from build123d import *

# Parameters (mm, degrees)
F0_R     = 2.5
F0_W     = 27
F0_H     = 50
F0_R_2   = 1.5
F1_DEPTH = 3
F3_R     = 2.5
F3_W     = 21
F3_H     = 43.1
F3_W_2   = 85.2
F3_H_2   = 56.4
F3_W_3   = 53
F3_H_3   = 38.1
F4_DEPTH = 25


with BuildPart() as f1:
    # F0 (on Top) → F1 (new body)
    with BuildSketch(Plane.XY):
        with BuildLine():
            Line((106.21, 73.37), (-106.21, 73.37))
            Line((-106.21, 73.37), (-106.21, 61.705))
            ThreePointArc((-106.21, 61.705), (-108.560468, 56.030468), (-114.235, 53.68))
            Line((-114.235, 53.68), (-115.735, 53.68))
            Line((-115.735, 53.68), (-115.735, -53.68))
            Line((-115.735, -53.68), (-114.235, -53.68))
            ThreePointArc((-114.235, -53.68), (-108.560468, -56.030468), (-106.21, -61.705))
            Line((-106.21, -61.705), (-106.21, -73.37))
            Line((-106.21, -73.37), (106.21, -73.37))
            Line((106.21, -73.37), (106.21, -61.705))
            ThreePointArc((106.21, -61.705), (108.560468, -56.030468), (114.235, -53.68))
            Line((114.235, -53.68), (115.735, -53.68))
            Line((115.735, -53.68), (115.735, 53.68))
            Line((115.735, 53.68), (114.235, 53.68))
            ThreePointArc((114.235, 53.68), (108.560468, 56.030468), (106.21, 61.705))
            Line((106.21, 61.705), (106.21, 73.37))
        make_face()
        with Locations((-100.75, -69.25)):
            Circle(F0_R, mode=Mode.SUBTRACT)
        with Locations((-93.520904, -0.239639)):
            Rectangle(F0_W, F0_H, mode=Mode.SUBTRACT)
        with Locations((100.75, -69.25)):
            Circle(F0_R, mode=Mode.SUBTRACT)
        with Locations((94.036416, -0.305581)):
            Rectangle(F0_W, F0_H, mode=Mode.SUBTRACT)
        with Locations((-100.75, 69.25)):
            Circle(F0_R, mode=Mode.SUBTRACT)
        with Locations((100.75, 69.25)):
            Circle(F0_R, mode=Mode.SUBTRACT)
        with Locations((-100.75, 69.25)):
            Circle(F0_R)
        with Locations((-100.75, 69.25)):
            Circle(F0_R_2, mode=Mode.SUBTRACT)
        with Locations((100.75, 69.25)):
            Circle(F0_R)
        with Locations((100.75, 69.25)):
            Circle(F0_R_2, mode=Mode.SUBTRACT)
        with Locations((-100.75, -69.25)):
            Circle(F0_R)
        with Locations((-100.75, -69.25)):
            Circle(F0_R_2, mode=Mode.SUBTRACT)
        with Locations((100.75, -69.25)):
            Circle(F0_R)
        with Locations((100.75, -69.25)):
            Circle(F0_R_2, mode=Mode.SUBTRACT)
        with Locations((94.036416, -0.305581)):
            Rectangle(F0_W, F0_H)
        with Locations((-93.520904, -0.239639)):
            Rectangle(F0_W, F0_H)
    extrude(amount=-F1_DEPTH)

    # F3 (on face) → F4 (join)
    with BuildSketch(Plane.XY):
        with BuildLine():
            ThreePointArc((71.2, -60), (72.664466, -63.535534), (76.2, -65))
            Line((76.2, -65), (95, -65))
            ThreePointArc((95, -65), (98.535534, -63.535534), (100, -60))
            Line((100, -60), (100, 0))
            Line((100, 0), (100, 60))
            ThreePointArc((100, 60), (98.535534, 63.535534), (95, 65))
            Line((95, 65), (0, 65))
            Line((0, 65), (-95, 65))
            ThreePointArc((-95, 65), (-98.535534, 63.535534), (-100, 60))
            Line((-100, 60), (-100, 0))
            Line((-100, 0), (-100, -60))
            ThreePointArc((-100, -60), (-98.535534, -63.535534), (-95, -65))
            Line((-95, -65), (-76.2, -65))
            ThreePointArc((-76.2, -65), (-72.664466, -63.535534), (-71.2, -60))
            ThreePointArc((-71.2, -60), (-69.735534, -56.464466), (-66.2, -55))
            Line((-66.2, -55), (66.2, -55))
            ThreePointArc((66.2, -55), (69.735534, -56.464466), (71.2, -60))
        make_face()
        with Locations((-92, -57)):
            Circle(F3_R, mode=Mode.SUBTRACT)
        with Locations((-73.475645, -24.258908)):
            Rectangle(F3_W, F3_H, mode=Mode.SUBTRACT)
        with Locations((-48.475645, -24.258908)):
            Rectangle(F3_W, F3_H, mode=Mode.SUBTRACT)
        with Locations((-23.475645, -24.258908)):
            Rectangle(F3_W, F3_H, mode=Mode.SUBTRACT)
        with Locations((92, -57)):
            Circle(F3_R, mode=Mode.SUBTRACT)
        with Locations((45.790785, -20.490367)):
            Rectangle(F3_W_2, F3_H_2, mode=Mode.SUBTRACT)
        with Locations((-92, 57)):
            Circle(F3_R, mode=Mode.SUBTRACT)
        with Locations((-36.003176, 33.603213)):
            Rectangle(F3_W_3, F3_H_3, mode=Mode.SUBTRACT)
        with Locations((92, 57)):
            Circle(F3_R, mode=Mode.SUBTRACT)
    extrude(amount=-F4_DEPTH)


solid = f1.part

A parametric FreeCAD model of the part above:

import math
import FreeCAD as App
import Part
import Sketcher


def add_polygon(sketch, points):
    """Adds a closed chain of lines whose ends are joined by coincident constraints."""
    first, n = sketch.GeometryCount, len(points)
    for a, b in zip(points, points[1:] + points[:1]):
        sketch.addGeometry(Part.LineSegment(App.Vector(*a, 0), App.Vector(*b, 0)), False)
    for i in range(n):
        sketch.addConstraint(Sketcher.Constraint("Coincident", first + i, 2, first + (i + 1) % n, 1))

doc = App.newDocument("Part")
body = doc.addObject("PartDesign::Body", "Body")

sketch1 = doc.addObject("Sketcher::SketchObject", "Sketch")
body.addObject(sketch1)
sketch1.AttachmentSupport = (doc.XY_Plane, [""])
sketch1.MapMode = "FlatFace"
sketch1.addGeometry(Part.LineSegment(App.Vector(106.2, 73.4, 0), App.Vector(-106.2, 73.4, 0)), False)
sketch1.addGeometry(Part.LineSegment(App.Vector(-106.2, 73.4, 0), App.Vector(-106.2, 61.7, 0)), False)
sketch1.addGeometry(Part.ArcOfCircle(Part.Circle(App.Vector(-114.2, 61.7, 0), App.Vector(0, 0, 1), 8), math.radians(-90), math.radians(0)), False)
sketch1.addGeometry(Part.LineSegment(App.Vector(-114.2, 53.7, 0), App.Vector(-115.7, 53.7, 0)), False)
sketch1.addGeometry(Part.LineSegment(App.Vector(-115.7, 53.7, 0), App.Vector(-115.7, -53.7, 0)), False)
sketch1.addGeometry(Part.LineSegment(App.Vector(-115.7, -53.7, 0), App.Vector(-114.2, -53.7, 0)), False)
sketch1.addGeometry(Part.ArcOfCircle(Part.Circle(App.Vector(-114.2, -61.7, 0), App.Vector(0, 0, 1), 8), math.radians(0), math.radians(90)), False)
sketch1.addGeometry(Part.LineSegment(App.Vector(-106.2, -61.7, 0), App.Vector(-106.2, -73.4, 0)), False)
sketch1.addGeometry(Part.LineSegment(App.Vector(-106.2, -73.4, 0), App.Vector(106.2, -73.4, 0)), False)
sketch1.addGeometry(Part.LineSegment(App.Vector(106.2, -73.4, 0), App.Vector(106.2, -61.7, 0)), False)
sketch1.addGeometry(Part.ArcOfCircle(Part.Circle(App.Vector(114.2, -61.7, 0), App.Vector(0, 0, 1), 8), math.radians(90), math.radians(180)), False)
sketch1.addGeometry(Part.LineSegment(App.Vector(114.2, -53.7, 0), App.Vector(115.7, -53.7, 0)), False)
sketch1.addGeometry(Part.LineSegment(App.Vector(115.7, -53.7, 0), App.Vector(115.7, 53.7, 0)), False)
sketch1.addGeometry(Part.LineSegment(App.Vector(115.7, 53.7, 0), App.Vector(114.2, 53.7, 0)), False)
sketch1.addGeometry(Part.ArcOfCircle(Part.Circle(App.Vector(114.2, 61.7, 0), App.Vector(0, 0, 1), 8), math.radians(180), math.radians(270)), False)
sketch1.addGeometry(Part.LineSegment(App.Vector(106.2, 61.7, 0), App.Vector(106.2, 73.4, 0)), False)
sketch1.addGeometry(Part.Circle(App.Vector(-100.8, -69.2, 0), App.Vector(0, 0, 1), 1.5), False)
sketch1.addGeometry(Part.Circle(App.Vector(100.8, -69.2, 0), App.Vector(0, 0, 1), 1.5), False)
sketch1.addGeometry(Part.Circle(App.Vector(-100.8, 69.2, 0), App.Vector(0, 0, 1), 1.5), False)
sketch1.addGeometry(Part.Circle(App.Vector(100.8, 69.2, 0), App.Vector(0, 0, 1), 1.5), False)
sketch1.addConstraint(Sketcher.Constraint("Coincident", 0, 2, 1, 1))
sketch1.addConstraint(Sketcher.Constraint("Tangent", 1, 2, 2, 2))
sketch1.addConstraint(Sketcher.Constraint("Tangent", 2, 1, 3, 1))
sketch1.addConstraint(Sketcher.Constraint("Coincident", 3, 2, 4, 1))
sketch1.addConstraint(Sketcher.Constraint("Coincident", 4, 2, 5, 1))
sketch1.addConstraint(Sketcher.Constraint("Tangent", 5, 2, 6, 2))
sketch1.addConstraint(Sketcher.Constraint("Tangent", 6, 1, 7, 1))
sketch1.addConstraint(Sketcher.Constraint("Coincident", 7, 2, 8, 1))
sketch1.addConstraint(Sketcher.Constraint("Coincident", 8, 2, 9, 1))
sketch1.addConstraint(Sketcher.Constraint("Tangent", 9, 2, 10, 2))
sketch1.addConstraint(Sketcher.Constraint("Tangent", 10, 1, 11, 1))
sketch1.addConstraint(Sketcher.Constraint("Coincident", 11, 2, 12, 1))
sketch1.addConstraint(Sketcher.Constraint("Coincident", 12, 2, 13, 1))
sketch1.addConstraint(Sketcher.Constraint("Tangent", 13, 2, 14, 2))
sketch1.addConstraint(Sketcher.Constraint("Tangent", 14, 1, 15, 1))
sketch1.addConstraint(Sketcher.Constraint("Coincident", 15, 2, 0, 1))
sketch1.addConstraint(Sketcher.Constraint("Horizontal", 0))
sketch1.addConstraint(Sketcher.Constraint("Vertical", 1))
sketch1.addConstraint(Sketcher.Constraint("Horizontal", 3))
sketch1.addConstraint(Sketcher.Constraint("Vertical", 4))
sketch1.addConstraint(Sketcher.Constraint("Horizontal", 5))
sketch1.addConstraint(Sketcher.Constraint("Vertical", 7))
sketch1.addConstraint(Sketcher.Constraint("Horizontal", 8))
sketch1.addConstraint(Sketcher.Constraint("Vertical", 9))
sketch1.addConstraint(Sketcher.Constraint("Horizontal", 11))
sketch1.addConstraint(Sketcher.Constraint("Vertical", 12))
sketch1.addConstraint(Sketcher.Constraint("Horizontal", 13))
sketch1.addConstraint(Sketcher.Constraint("Vertical", 15))
sketch1.addConstraint(Sketcher.Constraint("Equal", 2, 6))
sketch1.addConstraint(Sketcher.Constraint("Equal", 6, 10))
sketch1.addConstraint(Sketcher.Constraint("Equal", 10, 14))
sketch1.addConstraint(Sketcher.Constraint("Equal", 16, 17))
sketch1.addConstraint(Sketcher.Constraint("Equal", 17, 18))
sketch1.addConstraint(Sketcher.Constraint("Equal", 18, 19))
sketch1.addConstraint(Sketcher.Constraint("Symmetric", 2, 3, 10, 3, -1, 1))
sketch1.addConstraint(Sketcher.Constraint("Symmetric", 6, 3, 14, 3, -1, 1))
sketch1.addConstraint(Sketcher.Constraint("Symmetric", 17, 3, 18, 3, -1, 1))
sketch1.addConstraint(Sketcher.Constraint("Symmetric", 16, 3, 19, 3, -1, 1))
sketch1.addConstraint(Sketcher.Constraint("Symmetric", 6, 3, 10, 3, -2))
sketch1.addConstraint(Sketcher.Constraint("Symmetric", 16, 3, 17, 3, -2))
sketch1.addConstraint(Sketcher.Constraint("Equal", 5, 11))
sketch1.addConstraint(Sketcher.Constraint("Equal", 1, 7))
sketch1.addConstraint(Sketcher.Constraint("Diameter", 16, 3.0))
sketch1.addConstraint(Sketcher.Constraint("DistanceX", 3, 2, 3, 1, 1.5))
sketch1.addConstraint(Sketcher.Constraint("Radius", 2, 8.025))
sketch1.addConstraint(Sketcher.Constraint("DistanceX", 0, 2, 0, 1, 212.42))
sketch1.addConstraint(Sketcher.Constraint("DistanceY", 4, 2, 4, 1, 107.36))
sketch1.addConstraint(Sketcher.Constraint("DistanceX", 16, 3, 17, 3, 201.5))
sketch1.addConstraint(Sketcher.Constraint("DistanceY", 16, 3, 18, 3, 138.5))
sketch1.addConstraint(Sketcher.Constraint("DistanceY", 1, 2, 1, 1, 11.665))
pad1 = doc.addObject("PartDesign::Pad", "Pad")
body.addObject(pad1)
pad1.Profile = sketch1
pad1.Length = 3
pad1.Reversed = True

sketch2 = doc.addObject("Sketcher::SketchObject", "Sketch001")
body.addObject(sketch2)
sketch2.AttachmentSupport = (doc.XY_Plane, [""])
sketch2.MapMode = "FlatFace"
sketch2.addGeometry(Part.ArcOfCircle(Part.Circle(App.Vector(76.2, -60, 0), App.Vector(0, 0, 1), 5), math.radians(180), math.radians(270)), False)
sketch2.addGeometry(Part.LineSegment(App.Vector(76.2, -65, 0), App.Vector(95, -65, 0)), False)
sketch2.addGeometry(Part.ArcOfCircle(Part.Circle(App.Vector(95, -60, 0), App.Vector(0, 0, 1), 5), math.radians(-90), math.radians(0)), False)
sketch2.addGeometry(Part.LineSegment(App.Vector(100, -60, 0), App.Vector(100, 60, 0)), False)
sketch2.addGeometry(Part.ArcOfCircle(Part.Circle(App.Vector(95, 60, 0), App.Vector(0, 0, 1), 5), math.radians(0), math.radians(90)), False)
sketch2.addGeometry(Part.LineSegment(App.Vector(95, 65, 0), App.Vector(-95, 65, 0)), False)
sketch2.addGeometry(Part.ArcOfCircle(Part.Circle(App.Vector(-95, 60, 0), App.Vector(0, 0, 1), 5), math.radians(90), math.radians(180)), False)
sketch2.addGeometry(Part.LineSegment(App.Vector(-100, 60, 0), App.Vector(-100, -60, 0)), False)
sketch2.addGeometry(Part.ArcOfCircle(Part.Circle(App.Vector(-95, -60, 0), App.Vector(0, 0, 1), 5), math.radians(180), math.radians(270)), False)
sketch2.addGeometry(Part.LineSegment(App.Vector(-95, -65, 0), App.Vector(-76.2, -65, 0)), False)
sketch2.addGeometry(Part.ArcOfCircle(Part.Circle(App.Vector(-76.2, -60, 0), App.Vector(0, 0, 1), 5), math.radians(-90), math.radians(0)), False)
sketch2.addGeometry(Part.ArcOfCircle(Part.Circle(App.Vector(-66.2, -60, 0), App.Vector(0, 0, 1), 5), math.radians(90), math.radians(180)), False)
sketch2.addGeometry(Part.LineSegment(App.Vector(-66.2, -55, 0), App.Vector(66.2, -55, 0)), False)
sketch2.addGeometry(Part.ArcOfCircle(Part.Circle(App.Vector(66.2, -60, 0), App.Vector(0, 0, 1), 5), math.radians(0), math.radians(90)), False)
sketch2.addGeometry(Part.Circle(App.Vector(-92, -57, 0), App.Vector(0, 0, 1), 2.5), False)
add_polygon(sketch2, [(-63, -45.8), (-84, -45.8), (-84, -2.7), (-63, -2.7)])
add_polygon(sketch2, [(-38, -45.8), (-59, -45.8), (-59, -2.7), (-38, -2.7)])
add_polygon(sketch2, [(-13, -45.8), (-34, -45.8), (-34, -2.7), (-13, -2.7)])
sketch2.addGeometry(Part.Circle(App.Vector(92, -57, 0), App.Vector(0, 0, 1), 2.5), False)
add_polygon(sketch2, [(88.4, -48.7), (3.2, -48.7), (3.2, 7.7), (88.4, 7.7)])
sketch2.addGeometry(Part.Circle(App.Vector(-92, 57, 0), App.Vector(0, 0, 1), 2.5), False)
add_polygon(sketch2, [(-9.5, 14.6), (-62.5, 14.6), (-62.5, 52.7), (-9.5, 52.7)])
sketch2.addGeometry(Part.Circle(App.Vector(92, 57, 0), App.Vector(0, 0, 1), 2.5), False)
sketch2.addConstraint(Sketcher.Constraint("Tangent", 0, 2, 1, 1))
sketch2.addConstraint(Sketcher.Constraint("Tangent", 1, 2, 2, 1))
sketch2.addConstraint(Sketcher.Constraint("Tangent", 2, 2, 3, 1))
sketch2.addConstraint(Sketcher.Constraint("Tangent", 3, 2, 4, 1))
sketch2.addConstraint(Sketcher.Constraint("Tangent", 4, 2, 5, 1))
sketch2.addConstraint(Sketcher.Constraint("Tangent", 5, 2, 6, 1))
sketch2.addConstraint(Sketcher.Constraint("Tangent", 6, 2, 7, 1))
sketch2.addConstraint(Sketcher.Constraint("Tangent", 7, 2, 8, 1))
sketch2.addConstraint(Sketcher.Constraint("Tangent", 8, 2, 9, 1))
sketch2.addConstraint(Sketcher.Constraint("Tangent", 9, 2, 10, 1))
sketch2.addConstraint(Sketcher.Constraint("Tangent", 10, 2, 11, 2))
sketch2.addConstraint(Sketcher.Constraint("Tangent", 11, 1, 12, 1))
sketch2.addConstraint(Sketcher.Constraint("Tangent", 12, 2, 13, 2))
sketch2.addConstraint(Sketcher.Constraint("Tangent", 13, 1, 0, 1))
sketch2.addConstraint(Sketcher.Constraint("Horizontal", 1))
sketch2.addConstraint(Sketcher.Constraint("Vertical", 3))
sketch2.addConstraint(Sketcher.Constraint("Horizontal", 5))
sketch2.addConstraint(Sketcher.Constraint("Vertical", 7))
sketch2.addConstraint(Sketcher.Constraint("Horizontal", 9))
sketch2.addConstraint(Sketcher.Constraint("Horizontal", 12))
sketch2.addConstraint(Sketcher.Constraint("Horizontal", 15))
sketch2.addConstraint(Sketcher.Constraint("Vertical", 16))
sketch2.addConstraint(Sketcher.Constraint("Horizontal", 17))
sketch2.addConstraint(Sketcher.Constraint("Vertical", 18))
sketch2.addConstraint(Sketcher.Constraint("Horizontal", 19))
sketch2.addConstraint(Sketcher.Constraint("Vertical", 20))
sketch2.addConstraint(Sketcher.Constraint("Horizontal", 21))
sketch2.addConstraint(Sketcher.Constraint("Vertical", 22))
sketch2.addConstraint(Sketcher.Constraint("Horizontal", 23))
sketch2.addConstraint(Sketcher.Constraint("Vertical", 24))
sketch2.addConstraint(Sketcher.Constraint("Horizontal", 25))
sketch2.addConstraint(Sketcher.Constraint("Vertical", 26))
sketch2.addConstraint(Sketcher.Constraint("Horizontal", 28))
sketch2.addConstraint(Sketcher.Constraint("Vertical", 29))
sketch2.addConstraint(Sketcher.Constraint("Horizontal", 30))
sketch2.addConstraint(Sketcher.Constraint("Vertical", 31))
sketch2.addConstraint(Sketcher.Constraint("Horizontal", 33))
sketch2.addConstraint(Sketcher.Constraint("Vertical", 34))
sketch2.addConstraint(Sketcher.Constraint("Horizontal", 35))
sketch2.addConstraint(Sketcher.Constraint("Vertical", 36))
sketch2.addConstraint(Sketcher.Constraint("Equal", 0, 2))
sketch2.addConstraint(Sketcher.Constraint("Equal", 2, 4))
sketch2.addConstraint(Sketcher.Constraint("Equal", 4, 6))
sketch2.addConstraint(Sketcher.Constraint("Equal", 6, 8))
sketch2.addConstraint(Sketcher.Constraint("Equal", 8, 10))
sketch2.addConstraint(Sketcher.Constraint("Equal", 10, 11))
sketch2.addConstraint(Sketcher.Constraint("Equal", 11, 13))
sketch2.addConstraint(Sketcher.Constraint("Equal", 14, 27))
sketch2.addConstraint(Sketcher.Constraint("Equal", 27, 32))
sketch2.addConstraint(Sketcher.Constraint("Equal", 32, 37))
sketch2.addConstraint(Sketcher.Constraint("Symmetric", 2, 3, 6, 3, -1, 1))
sketch2.addConstraint(Sketcher.Constraint("Symmetric", 27, 3, 32, 3, -1, 1))
sketch2.addConstraint(Sketcher.Constraint("Symmetric", 14, 3, 37, 3, -1, 1))
sketch2.addConstraint(Sketcher.Constraint("Symmetric", 0, 3, 10, 3, -2))
sketch2.addConstraint(Sketcher.Constraint("Symmetric", 14, 3, 27, 3, -2))
sketch2.addConstraint(Sketcher.Constraint("Horizontal", 10, 3, 11, 3))
sketch2.addConstraint(Sketcher.Constraint("Horizontal", 18, 2, 19, 2))
sketch2.addConstraint(Sketcher.Constraint("Horizontal", 17, 2, 20, 2))
sketch2.addConstraint(Sketcher.Constraint("Horizontal", 22, 2, 23, 2))
sketch2.addConstraint(Sketcher.Constraint("Horizontal", 21, 2, 24, 2))
sketch2.addConstraint(Sketcher.Constraint("Equal", 17, 19))
sketch2.addConstraint(Sketcher.Constraint("Equal", 21, 23))
sketch2.addConstraint(Sketcher.Constraint("Diameter", 14, 5.0))
sketch2.addConstraint(Sketcher.Constraint("Radius", 0, 5.0))
sketch2.addConstraint(Sketcher.Constraint("DistanceX", 5, 2, 5, 1, 190.0))
sketch2.addConstraint(Sketcher.Constraint("DistanceX", 15, 2, 15, 1, 21.0))
sketch2.addConstraint(Sketcher.Constraint("DistanceX", 33, 2, 33, 1, 53.0))
sketch2.addConstraint(Sketcher.Constraint("DistanceY", 3, 1, 3, 2, 120.0))
sketch2.addConstraint(Sketcher.Constraint("DistanceX", 1, 1, 1, 2, 18.8))
sketch2.addConstraint(Sketcher.Constraint("DistanceX", 28, 2, 28, 1, 85.2))
sketch2.addConstraint(Sketcher.Constraint("DistanceY", 16, 1, 16, 2, 43.1))
sketch2.addConstraint(Sketcher.Constraint("DistanceY", 29, 1, 29, 2, 56.4))
sketch2.addConstraint(Sketcher.Constraint("DistanceY", 34, 1, 34, 2, 38.1))
sketch2.addConstraint(Sketcher.Constraint("DistanceX", 14, 3, -1, 1, 92.0))
sketch2.addConstraint(Sketcher.Constraint("DistanceY", 14, 3, -1, 1, 57.0))
sketch2.addConstraint(Sketcher.Constraint("DistanceX", 18, 2, 19, 2, 4.0))
sketch2.addConstraint(Sketcher.Constraint("DistanceX", 22, 2, 23, 2, 4.0))
sketch2.addConstraint(Sketcher.Constraint("DistanceY", 15, 2, -1, 1, 45.808908))
sketch2.addConstraint(Sketcher.Constraint("DistanceX", 26, 2, 28, 2, 16.16643))
sketch2.addConstraint(Sketcher.Constraint("DistanceY", 28, 2, 26, 2, 2.881459))
sketch2.addConstraint(Sketcher.Constraint("DistanceX", 17, 2, 33, 2, 0.472469))
sketch2.addConstraint(Sketcher.Constraint("DistanceY", 17, 2, 33, 2, 17.262121))
sketch2.addConstraint(Sketcher.Constraint("DistanceX", 15, 2, -1, 1, 83.975645))
pad2 = doc.addObject("PartDesign::Pad", "Pad001")
body.addObject(pad2)
pad2.Profile = sketch2
pad2.Length = 25
pad2.Reversed = True

doc.recompute()
